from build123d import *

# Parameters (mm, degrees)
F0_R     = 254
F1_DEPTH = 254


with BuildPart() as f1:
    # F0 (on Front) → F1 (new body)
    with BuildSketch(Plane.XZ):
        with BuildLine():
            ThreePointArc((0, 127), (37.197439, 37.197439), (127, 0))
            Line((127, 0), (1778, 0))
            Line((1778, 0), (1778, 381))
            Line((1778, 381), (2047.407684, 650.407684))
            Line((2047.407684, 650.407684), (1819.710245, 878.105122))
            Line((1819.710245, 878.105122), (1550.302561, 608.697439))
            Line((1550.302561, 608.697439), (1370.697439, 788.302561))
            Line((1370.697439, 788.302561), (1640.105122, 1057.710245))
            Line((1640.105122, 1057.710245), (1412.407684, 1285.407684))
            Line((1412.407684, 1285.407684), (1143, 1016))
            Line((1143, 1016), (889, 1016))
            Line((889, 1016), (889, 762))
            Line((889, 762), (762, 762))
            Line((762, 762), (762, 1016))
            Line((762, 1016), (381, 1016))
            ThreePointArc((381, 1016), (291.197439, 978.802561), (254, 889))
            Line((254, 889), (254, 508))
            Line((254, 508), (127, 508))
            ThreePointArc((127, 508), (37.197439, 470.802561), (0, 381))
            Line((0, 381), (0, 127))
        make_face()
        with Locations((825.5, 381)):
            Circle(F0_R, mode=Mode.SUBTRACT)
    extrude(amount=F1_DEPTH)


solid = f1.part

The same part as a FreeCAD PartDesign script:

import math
import FreeCAD as App
import Part
import Sketcher

V = App.Vector
Q = App.Units.Quantity

doc = App.newDocument("Part")
body = doc.addObject("PartDesign::Body", "Body")

# Sketch on XZ plane
sketch1 = body.newObject("Sketcher::SketchObject", "Sketch")
sketch1.AttachmentSupport = (doc.getObject("XZ_Plane"), [""])
sketch1.MapMode = "FlatFace"
sketch1.addGeometry([
    Part.ArcOfCircle(Part.Circle(V(127, 127, 0), V(0, 0, 1), 127), math.radians(-180), math.radians(-90)),  # 0
    Part.LineSegment(V(127, 0, 0), V(1778, 0, 0)),  # 1
    Part.LineSegment(V(1778, 0, 0), V(1778, 381, 0)),  # 2
    Part.LineSegment(V(1778, 381, 0), V(2047, 650, 0)),  # 3
    Part.LineSegment(V(2047, 650, 0), V(1820, 878, 0)),  # 4
    Part.LineSegment(V(1820, 878, 0), V(1550, 609, 0)),  # 5
    Part.LineSegment(V(1550, 609, 0), V(1371, 788, 0)),  # 6
    Part.LineSegment(V(1371, 788, 0), V(1640, 1058, 0)),  # 7
    Part.LineSegment(V(1640, 1058, 0), V(1412, 1285, 0)),  # 8
    Part.LineSegment(V(1412, 1285, 0), V(1143, 1016, 0)),  # 9
    Part.LineSegment(V(1143, 1016, 0), V(889, 1016, 0)),  # 10
    Part.LineSegment(V(889, 1016, 0), V(889, 762, 0)),  # 11
    Part.LineSegment(V(889, 762, 0), V(762, 762, 0)),  # 12
    Part.LineSegment(V(762, 762, 0), V(762, 1016, 0)),  # 13
    Part.LineSegment(V(762, 1016, 0), V(381, 1016, 0)),  # 14
    Part.ArcOfCircle(Part.Circle(V(381, 889, 0), V(0, 0, 1), 127), math.radians(90), math.radians(180)),  # 15
    Part.LineSegment(V(254, 889, 0), V(254, 508, 0)),  # 16
    Part.LineSegment(V(254, 508, 0), V(127, 508, 0)),  # 17
    Part.ArcOfCircle(Part.Circle(V(127, 381, 0), V(0, 0, 1), 127), math.radians(90), math.radians(180)),  # 18
    Part.LineSegment(V(0, 381, 0), V(0, 127, 0)),  # 19
    Part.Circle(V(826, 381, 0), V(0, 0, 1), 254),  # 20
], False)
sketch1.addConstraint([
    Sketcher.Constraint("Tangent", 0, 2, 1, 1),
    Sketcher.Constraint("Coincident", 1, 2, 2, 1),
    Sketcher.Constraint("Coincident", 2, 2, 3, 1),
    Sketcher.Constraint("Coincident", 3, 2, 4, 1),
    Sketcher.Constraint("Coincident", 4, 2, 5, 1),
    Sketcher.Constraint("Coincident", 5, 2, 6, 1),
    Sketcher.Constraint("Coincident", 6, 2, 7, 1),
    Sketcher.Constraint("Coincident", 7, 2, 8, 1),
    Sketcher.Constraint("Coincident", 8, 2, 9, 1),
    Sketcher.Constraint("Coincident", 9, 2, 10, 1),
    Sketcher.Constraint("Coincident", 10, 2, 11, 1),
    Sketcher.Constraint("Coincident", 11, 2, 12, 1),
    Sketcher.Constraint("Coincident", 12, 2, 13, 1),
    Sketcher.Constraint("Coincident", 13, 2, 14, 1),
    Sketcher.Constraint("Tangent", 14, 2, 15, 1),
    Sketcher.Constraint("Tangent", 15, 2, 16, 1),
    Sketcher.Constraint("Coincident", 16, 2, 17, 1),
    Sketcher.Constraint("Tangent", 17, 2, 18, 1),
    Sketcher.Constraint("Tangent", 18, 2, 19, 1),
    Sketcher.Constraint("Tangent", 19, 2, 0, 1),
    Sketcher.Constraint("Horizontal", 1),
    Sketcher.Constraint("Vertical", 2),
    Sketcher.Constraint("Horizontal", 10),
    Sketcher.Constraint("Vertical", 11),
    Sketcher.Constraint("Horizontal", 12),
    Sketcher.Constraint("Vertical", 13),
    Sketcher.Constraint("Horizontal", 14),
    Sketcher.Constraint("Vertical", 16),
    Sketcher.Constraint("Horizontal", 17),
    Sketcher.Constraint("Vertical", 19),
    Sketcher.Constraint("Equal", 0, 15),
    Sketcher.Constraint("Equal", 15, 18),
    Sketcher.Constraint("PointOnObject", 0, 2, -1),
    Sketcher.Constraint("PointOnObject", 18, 2, -2),
    Sketcher.Constraint("Perpendicular", 3, 4),
    Sketcher.Constraint("Perpendicular", 4, 5),
    Sketcher.Constraint("Perpendicular", 5, 6),
    Sketcher.Constraint("Perpendicular", 6, 7),
    Sketcher.Constraint("Perpendicular", 7, 8),
    Sketcher.Constraint("Perpendicular", 8, 9),
    Sketcher.Constraint("Horizontal", 18, 3, 20, 3),
    Sketcher.Constraint("Horizontal", 20, 3, 2, 2),
    Sketcher.Constraint("Horizontal", 10, 2, 13, 2),
    Sketcher.Constraint("Equal", 12, 17),
    Sketcher.Constraint("Equal", 14, 2),
    Sketcher.Constraint("Equal", 10, 11),
    Sketcher.Constraint("Equal", 2, 16),
    Sketcher.Constraint("Equal", 13, 19),
    Sketcher.Constraint("Equal", 3, 5),
    Sketcher.Constraint("Equal", 5, 7),
    Sketcher.Constraint("Equal", 4, 8),
    Sketcher.Constraint("Equal", 7, 9),
    Sketcher.Constraint("Diameter", 20, Q("20 in")),
    Sketcher.Constraint("Radius", 0, Q("5 in")),
    Sketcher.Constraint("DistanceX", 1, 1, 1, 2, Q("65 in")),
    Sketcher.Constraint("DistanceX", 10, 2, 10, 1, Q("10 in")),
    Sketcher.Constraint("DistanceX", 12, 2, 12, 1, Q("5 in")),
    Sketcher.Constraint("Distance", 3, Q("15 in")),
    Sketcher.Constraint("Distance", 6, Q("10 in")),
    Sketcher.Constraint("DistanceX", -1, 1, 20, 3, Q("32.5 in")),
])
pad1 = body.newObject("PartDesign::Pad", "Pad")
pad1.Profile = sketch1
pad1.Length = Q("10 in")

doc.recompute()
